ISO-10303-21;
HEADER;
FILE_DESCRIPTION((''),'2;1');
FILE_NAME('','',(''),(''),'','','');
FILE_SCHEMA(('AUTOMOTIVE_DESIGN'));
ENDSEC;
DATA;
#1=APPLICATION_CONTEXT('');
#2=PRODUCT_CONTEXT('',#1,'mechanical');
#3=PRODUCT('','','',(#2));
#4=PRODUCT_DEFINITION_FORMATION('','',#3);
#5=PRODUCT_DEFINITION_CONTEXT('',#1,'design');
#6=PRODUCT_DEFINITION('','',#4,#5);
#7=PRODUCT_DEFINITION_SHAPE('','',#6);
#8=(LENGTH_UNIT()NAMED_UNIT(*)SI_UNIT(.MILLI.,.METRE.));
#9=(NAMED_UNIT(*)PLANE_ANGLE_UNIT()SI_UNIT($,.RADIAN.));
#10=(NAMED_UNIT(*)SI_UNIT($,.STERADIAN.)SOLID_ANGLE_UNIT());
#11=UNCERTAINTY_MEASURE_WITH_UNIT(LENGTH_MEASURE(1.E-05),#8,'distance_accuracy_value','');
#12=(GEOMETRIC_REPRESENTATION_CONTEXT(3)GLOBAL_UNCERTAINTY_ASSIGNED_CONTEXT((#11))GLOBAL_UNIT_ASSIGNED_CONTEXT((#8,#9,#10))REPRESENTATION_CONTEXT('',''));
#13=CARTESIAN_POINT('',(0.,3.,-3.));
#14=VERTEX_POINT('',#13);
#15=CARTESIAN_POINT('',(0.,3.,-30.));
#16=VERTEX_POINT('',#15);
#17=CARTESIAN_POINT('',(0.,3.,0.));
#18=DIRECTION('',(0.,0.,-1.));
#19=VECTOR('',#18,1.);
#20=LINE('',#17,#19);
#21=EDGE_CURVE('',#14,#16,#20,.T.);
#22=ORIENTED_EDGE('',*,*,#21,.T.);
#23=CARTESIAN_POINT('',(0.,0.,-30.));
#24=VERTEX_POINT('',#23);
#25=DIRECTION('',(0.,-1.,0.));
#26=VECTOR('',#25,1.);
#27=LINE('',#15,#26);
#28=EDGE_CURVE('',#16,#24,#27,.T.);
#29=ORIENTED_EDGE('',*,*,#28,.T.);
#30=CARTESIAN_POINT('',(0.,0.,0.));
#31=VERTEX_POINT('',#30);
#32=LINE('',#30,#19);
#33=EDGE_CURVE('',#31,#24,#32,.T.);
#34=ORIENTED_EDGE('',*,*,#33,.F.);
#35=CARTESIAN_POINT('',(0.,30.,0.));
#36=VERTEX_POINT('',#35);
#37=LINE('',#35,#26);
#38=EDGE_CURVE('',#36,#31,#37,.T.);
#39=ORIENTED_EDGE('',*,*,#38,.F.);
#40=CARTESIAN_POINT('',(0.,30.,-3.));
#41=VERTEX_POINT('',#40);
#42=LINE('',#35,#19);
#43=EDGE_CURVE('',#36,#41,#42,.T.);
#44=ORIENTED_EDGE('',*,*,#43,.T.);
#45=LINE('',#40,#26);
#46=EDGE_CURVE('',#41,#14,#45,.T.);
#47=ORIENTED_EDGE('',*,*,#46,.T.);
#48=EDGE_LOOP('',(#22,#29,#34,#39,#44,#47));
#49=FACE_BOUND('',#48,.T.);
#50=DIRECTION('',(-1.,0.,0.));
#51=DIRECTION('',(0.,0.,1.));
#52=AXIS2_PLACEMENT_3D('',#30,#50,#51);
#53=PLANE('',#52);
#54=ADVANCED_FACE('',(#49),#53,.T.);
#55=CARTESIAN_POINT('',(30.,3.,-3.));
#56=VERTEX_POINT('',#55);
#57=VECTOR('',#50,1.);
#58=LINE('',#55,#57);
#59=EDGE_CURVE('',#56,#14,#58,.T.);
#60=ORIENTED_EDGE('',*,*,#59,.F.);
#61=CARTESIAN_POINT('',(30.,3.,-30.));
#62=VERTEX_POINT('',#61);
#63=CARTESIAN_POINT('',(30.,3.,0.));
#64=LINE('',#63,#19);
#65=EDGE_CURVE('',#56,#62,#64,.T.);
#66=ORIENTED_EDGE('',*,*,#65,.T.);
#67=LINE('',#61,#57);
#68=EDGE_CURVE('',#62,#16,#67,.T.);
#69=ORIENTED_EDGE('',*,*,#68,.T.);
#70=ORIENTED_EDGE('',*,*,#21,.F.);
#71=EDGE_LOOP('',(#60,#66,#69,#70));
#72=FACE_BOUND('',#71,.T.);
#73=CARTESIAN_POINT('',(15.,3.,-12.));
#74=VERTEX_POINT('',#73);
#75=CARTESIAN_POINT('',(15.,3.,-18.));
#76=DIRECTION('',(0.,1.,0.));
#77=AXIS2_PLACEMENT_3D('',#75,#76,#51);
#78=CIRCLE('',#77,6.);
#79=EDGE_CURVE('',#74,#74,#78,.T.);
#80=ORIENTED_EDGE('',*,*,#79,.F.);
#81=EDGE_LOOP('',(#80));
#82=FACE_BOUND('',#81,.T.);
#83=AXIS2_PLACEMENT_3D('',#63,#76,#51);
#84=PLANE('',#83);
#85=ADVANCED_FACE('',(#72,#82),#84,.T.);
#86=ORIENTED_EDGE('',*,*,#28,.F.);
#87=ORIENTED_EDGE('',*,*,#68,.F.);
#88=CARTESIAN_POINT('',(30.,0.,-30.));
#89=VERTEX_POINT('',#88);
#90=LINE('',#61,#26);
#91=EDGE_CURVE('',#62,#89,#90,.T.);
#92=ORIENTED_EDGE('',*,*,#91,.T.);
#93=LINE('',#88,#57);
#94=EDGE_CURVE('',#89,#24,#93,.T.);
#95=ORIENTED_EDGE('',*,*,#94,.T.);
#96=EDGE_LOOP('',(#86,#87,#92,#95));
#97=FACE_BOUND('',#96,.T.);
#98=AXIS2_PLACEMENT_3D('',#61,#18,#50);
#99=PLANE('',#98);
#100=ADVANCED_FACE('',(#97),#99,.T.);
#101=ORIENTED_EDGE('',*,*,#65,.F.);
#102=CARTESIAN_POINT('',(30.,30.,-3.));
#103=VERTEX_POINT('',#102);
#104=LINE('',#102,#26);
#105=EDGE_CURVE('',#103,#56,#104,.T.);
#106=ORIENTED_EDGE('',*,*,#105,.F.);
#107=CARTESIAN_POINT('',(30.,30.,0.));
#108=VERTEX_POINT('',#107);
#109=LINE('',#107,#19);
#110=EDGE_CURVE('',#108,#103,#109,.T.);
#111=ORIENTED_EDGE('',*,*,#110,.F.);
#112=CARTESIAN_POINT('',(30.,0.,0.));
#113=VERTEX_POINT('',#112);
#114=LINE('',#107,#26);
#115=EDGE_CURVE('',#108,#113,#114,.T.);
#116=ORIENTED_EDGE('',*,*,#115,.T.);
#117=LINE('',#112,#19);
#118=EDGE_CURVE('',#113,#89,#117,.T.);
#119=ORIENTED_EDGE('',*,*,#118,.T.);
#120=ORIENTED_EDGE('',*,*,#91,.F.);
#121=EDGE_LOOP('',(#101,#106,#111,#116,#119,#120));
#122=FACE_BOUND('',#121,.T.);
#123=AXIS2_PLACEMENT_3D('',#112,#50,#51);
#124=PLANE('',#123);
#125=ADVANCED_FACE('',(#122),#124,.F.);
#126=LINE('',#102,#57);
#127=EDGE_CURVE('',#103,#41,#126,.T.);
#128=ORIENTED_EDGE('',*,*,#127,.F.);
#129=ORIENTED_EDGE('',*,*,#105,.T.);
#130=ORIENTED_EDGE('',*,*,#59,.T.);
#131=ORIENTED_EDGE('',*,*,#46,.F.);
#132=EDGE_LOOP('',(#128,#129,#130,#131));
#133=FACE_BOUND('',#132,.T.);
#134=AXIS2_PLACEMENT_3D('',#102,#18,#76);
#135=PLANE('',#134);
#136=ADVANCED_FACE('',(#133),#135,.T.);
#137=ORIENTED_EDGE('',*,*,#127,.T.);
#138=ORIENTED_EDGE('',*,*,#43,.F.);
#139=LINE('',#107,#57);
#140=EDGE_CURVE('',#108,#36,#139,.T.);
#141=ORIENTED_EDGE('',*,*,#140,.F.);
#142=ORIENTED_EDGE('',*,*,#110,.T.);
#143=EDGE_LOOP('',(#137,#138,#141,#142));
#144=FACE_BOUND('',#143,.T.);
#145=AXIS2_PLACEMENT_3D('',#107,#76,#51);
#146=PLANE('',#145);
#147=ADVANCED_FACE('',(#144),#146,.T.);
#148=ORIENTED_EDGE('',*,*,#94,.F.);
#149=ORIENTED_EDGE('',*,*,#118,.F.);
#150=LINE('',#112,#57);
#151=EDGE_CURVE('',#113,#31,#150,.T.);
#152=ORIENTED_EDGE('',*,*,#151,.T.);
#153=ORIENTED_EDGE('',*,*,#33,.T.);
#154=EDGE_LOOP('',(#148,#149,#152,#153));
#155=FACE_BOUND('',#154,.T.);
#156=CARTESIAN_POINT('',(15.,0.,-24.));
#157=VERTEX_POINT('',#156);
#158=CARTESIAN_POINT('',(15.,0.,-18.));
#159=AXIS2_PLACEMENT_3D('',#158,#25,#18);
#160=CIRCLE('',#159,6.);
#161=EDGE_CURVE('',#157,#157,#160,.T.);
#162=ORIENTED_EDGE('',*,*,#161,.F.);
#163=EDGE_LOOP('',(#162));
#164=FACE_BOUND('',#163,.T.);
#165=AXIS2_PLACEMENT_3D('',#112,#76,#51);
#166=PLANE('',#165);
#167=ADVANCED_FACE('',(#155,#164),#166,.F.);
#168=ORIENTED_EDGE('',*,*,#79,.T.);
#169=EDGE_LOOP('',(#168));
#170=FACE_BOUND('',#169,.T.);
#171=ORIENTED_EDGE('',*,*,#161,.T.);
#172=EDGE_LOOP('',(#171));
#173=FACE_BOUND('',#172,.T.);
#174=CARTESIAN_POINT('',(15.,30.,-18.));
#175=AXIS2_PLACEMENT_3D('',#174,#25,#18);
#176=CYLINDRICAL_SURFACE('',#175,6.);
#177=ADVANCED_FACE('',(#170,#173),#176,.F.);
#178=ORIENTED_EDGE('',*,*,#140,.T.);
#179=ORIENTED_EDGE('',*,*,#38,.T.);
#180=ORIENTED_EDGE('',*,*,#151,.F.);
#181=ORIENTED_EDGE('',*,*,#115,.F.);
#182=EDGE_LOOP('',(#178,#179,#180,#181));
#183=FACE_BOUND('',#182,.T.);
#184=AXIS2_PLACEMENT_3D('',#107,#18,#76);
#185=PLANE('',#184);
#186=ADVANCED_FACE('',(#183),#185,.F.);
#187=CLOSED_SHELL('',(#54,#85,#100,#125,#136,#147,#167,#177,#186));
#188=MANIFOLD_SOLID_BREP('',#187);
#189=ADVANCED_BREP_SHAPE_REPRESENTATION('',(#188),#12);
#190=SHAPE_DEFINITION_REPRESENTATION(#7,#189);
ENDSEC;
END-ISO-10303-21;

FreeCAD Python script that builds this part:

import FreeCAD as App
import Part
import Sketcher
from FreeCAD import Vector

doc = App.newDocument("Part")
body = doc.addObject("PartDesign::Body", "Body")

# Sketch on YZ plane
sketch1 = body.newObject("Sketcher::SketchObject", "Sketch")
sketch1.AttachmentSupport = (doc.getObject("YZ_Plane"), [""])
sketch1.MapMode = "FlatFace"
sketch1.addGeometry([
    Part.LineSegment(Vector(30, 0, 0), Vector(0, 0, 0)),  # 0
    Part.LineSegment(Vector(0, 0, 0), Vector(0, -30, 0)),  # 1
    Part.LineSegment(Vector(0, -30, 0), Vector(3, -30, 0)),  # 2
    Part.LineSegment(Vector(3, -30, 0), Vector(3, -3, 0)),  # 3
    Part.LineSegment(Vector(3, -3, 0), Vector(30, -3, 0)),  # 4
    Part.LineSegment(Vector(30, -3, 0), Vector(30, 0, 0)),  # 5
], False)
sketch1.addConstraint([
    Sketcher.Constraint("Coincident", 0, 2, 1, 1),
    Sketcher.Constraint("Coincident", 1, 2, 2, 1),
    Sketcher.Constraint("Coincident", 2, 2, 3, 1),
    Sketcher.Constraint("Coincident", 3, 2, 4, 1),
    Sketcher.Constraint("Coincident", 4, 2, 5, 1),
    Sketcher.Constraint("Coincident", 5, 2, 0, 1),
    Sketcher.Constraint("Horizontal", 0),
    Sketcher.Constraint("Vertical", 1),
    Sketcher.Constraint("Horizontal", 2),
    Sketcher.Constraint("Vertical", 3),
    Sketcher.Constraint("Horizontal", 4),
    Sketcher.Constraint("Vertical", 5),
    Sketcher.Constraint("Coincident", 0, 2, -1, 1),
    Sketcher.Constraint("Equal", 0, 1),
    Sketcher.Constraint("Equal", 4, 3),
    Sketcher.Constraint("DistanceX", 0, 2, 0, 1, 30.0),
    Sketcher.Constraint("DistanceX", 2, 1, 2, 2, 3.0),
])
pad1 = body.newObject("PartDesign::Pad", "Pad")
pad1.Profile = sketch1
pad1.Length = 30

# Sketch on XZ plane
sketch2 = body.newObject("Sketcher::SketchObject", "Sketch001")
sketch2.AttachmentSupport = (doc.getObject("XZ_Plane"), [""])
sketch2.MapMode = "FlatFace"
sketch2.addGeometry(Part.Circle(Vector(15, -18, 0), Vector(0, 0, 1), 6), False)
sketch2.addConstraint([
    Sketcher.Constraint("Diameter", 0, 12.0),
    Sketcher.Constraint("DistanceX", -1, 1, 0, 3, 15.0),
    Sketcher.Constraint("DistanceY", 0, 3, -1, 1, 18.0),
])
pocket1 = body.newObject("PartDesign::Pocket", "Pocket")
pocket1.Profile = sketch2
pocket1.Type = "ThroughAll"

doc.recompute()
